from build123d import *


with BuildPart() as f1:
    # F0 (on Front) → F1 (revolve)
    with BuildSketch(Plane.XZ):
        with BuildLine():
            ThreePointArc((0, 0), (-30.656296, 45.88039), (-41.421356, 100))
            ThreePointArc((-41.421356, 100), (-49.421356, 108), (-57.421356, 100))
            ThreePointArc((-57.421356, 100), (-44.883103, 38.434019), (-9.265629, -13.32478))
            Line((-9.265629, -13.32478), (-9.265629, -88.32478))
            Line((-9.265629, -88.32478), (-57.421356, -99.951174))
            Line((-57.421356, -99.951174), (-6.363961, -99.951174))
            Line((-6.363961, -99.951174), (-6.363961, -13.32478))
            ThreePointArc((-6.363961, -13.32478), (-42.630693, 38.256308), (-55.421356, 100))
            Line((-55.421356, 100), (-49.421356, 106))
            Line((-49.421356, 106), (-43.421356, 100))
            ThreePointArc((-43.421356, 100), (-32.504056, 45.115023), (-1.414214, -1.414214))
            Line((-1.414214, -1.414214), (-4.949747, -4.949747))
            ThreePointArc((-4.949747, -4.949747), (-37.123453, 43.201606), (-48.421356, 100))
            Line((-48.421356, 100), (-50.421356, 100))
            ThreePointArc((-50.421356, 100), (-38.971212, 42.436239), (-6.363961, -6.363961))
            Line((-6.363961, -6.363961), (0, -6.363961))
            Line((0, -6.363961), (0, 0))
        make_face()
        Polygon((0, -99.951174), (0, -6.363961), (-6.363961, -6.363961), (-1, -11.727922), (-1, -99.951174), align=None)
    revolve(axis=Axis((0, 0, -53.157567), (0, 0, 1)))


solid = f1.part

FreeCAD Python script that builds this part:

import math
import FreeCAD as App
import Part
import Sketcher
from FreeCAD import Vector

doc = App.newDocument("Part")
body = doc.addObject("PartDesign::Body", "Body")

# Sketch on XZ plane
sketch1 = body.newObject("Sketcher::SketchObject", "Sketch")
sketch1.AttachmentSupport = (doc.getObject("XZ_Plane"), [""])
sketch1.MapMode = "FlatFace"
sketch1.addGeometry([
    Part.ArcOfCircle(Part.Circle(Vector(100.000004, 100.000001, 0), Vector(0, 0, 1), 141.42136), math.radians(-179.999999), math.radians(-135.000001)),  # 0
    Part.ArcOfCircle(Part.Circle(Vector(-49.421356, 100, 0), Vector(0, 0, 1), 8), math.radians(0), math.radians(180)),  # 1
    Part.ArcOfCircle(Part.Circle(Vector(99.999994, 99.999997, 0), Vector(0, 0, 1), 157.42135), math.radians(179.999999), math.radians(226.044729)),  # 2
    Part.LineSegment(Vector(-9.265629, -13.32478, 0), Vector(-9.265629, -88.32478, 0)),  # 3
    Part.LineSegment(Vector(-9.265629, -88.32478, 0), Vector(-57.421356, -99.951174, 0)),  # 4
    Part.LineSegment(Vector(-57.421356, -99.951174, 0), Vector(-6.363961, -99.951174, 0)),  # 5
    Part.LineSegment(Vector(-6.363961, -99.951174, 0), Vector(-6.363961, -13.32478, 0)),  # 6
    Part.ArcOfCircle(Part.Circle(Vector(99.999994, 99.999997, 0), Vector(0, 0, 1), 155.42135), math.radians(179.999999), math.radians(226.814806)),  # 7
    Part.LineSegment(Vector(-55.421356, 100, 0), Vector(-49.421356, 106, 0)),  # 8
    Part.LineSegment(Vector(-49.421356, 106, 0), Vector(-43.421356, 100, 0)),  # 9
    Part.ArcOfCircle(Part.Circle(Vector(99.999997, 99.999998, 0), Vector(0, 0, 1), 143.421353), math.radians(179.999999), math.radians(225)),  # 10
    Part.LineSegment(Vector(-1.414214, -1.414214, 0), Vector(-4.949747, -4.949747, 0)),  # 11
    Part.ArcOfCircle(Part.Circle(Vector(99.999997, 99.999999, 0), Vector(0, 0, 1), 148.421353), math.radians(180), math.radians(225.000001)),  # 12
    Part.LineSegment(Vector(-48.421356, 100, 0), Vector(-50.421356, 100, 0)),  # 13
    Part.ArcOfCircle(Part.Circle(Vector(100.000001, 100, 0), Vector(0, 0, 1), 150.421357), math.radians(-180), math.radians(-135)),  # 14
    Part.LineSegment(Vector(-6.363961, -6.363961, 0), Vector(-1, -11.727922, 0)),  # 15
    Part.LineSegment(Vector(-1, -11.727922, 0), Vector(-1, -99.951174, 0)),  # 16
    Part.LineSegment(Vector(-1, -99.951174, 0), Vector(0, -99.951174, 0)),  # 17
    Part.LineSegment(Vector(0, -99.951174, 0), Vector(0, 0, 0)),  # 18
], False)
sketch1.addConstraint([
    Sketcher.Constraint("Coincident", 0, 1, 1, 1),
    Sketcher.Constraint("Coincident", 1, 2, 2, 1),
    Sketcher.Constraint("Coincident", 2, 2, 3, 1),
    Sketcher.Constraint("Coincident", 3, 2, 4, 1),
    Sketcher.Constraint("Coincident", 4, 2, 5, 1),
    Sketcher.Constraint("Coincident", 5, 2, 6, 1),
    Sketcher.Constraint("Coincident", 6, 2, 7, 2),
    Sketcher.Constraint("Coincident", 7, 1, 8, 1),
    Sketcher.Constraint("Coincident", 8, 2, 9, 1),
    Sketcher.Constraint("Coincident", 9, 2, 10, 1),
    Sketcher.Constraint("Coincident", 10, 2, 11, 1),
    Sketcher.Constraint("Coincident", 11, 2, 12, 2),
    Sketcher.Constraint("Coincident", 12, 1, 13, 1),
    Sketcher.Constraint("Coincident", 13, 2, 14, 1),
    Sketcher.Constraint("Coincident", 14, 2, 15, 1),
    Sketcher.Constraint("Coincident", 15, 2, 16, 1),
    Sketcher.Constraint("Coincident", 16, 2, 17, 1),
    Sketcher.Constraint("Coincident", 17, 2, 18, 1),
    Sketcher.Constraint("Coincident", 18, 2, 0, 2),
    Sketcher.Constraint("Vertical", 3),
    Sketcher.Constraint("Horizontal", 5),
    Sketcher.Constraint("Vertical", 6),
    Sketcher.Constraint("Horizontal", 13),
    Sketcher.Constraint("Vertical", 16),
    Sketcher.Constraint("Horizontal", 17),
    Sketcher.Constraint("Vertical", 18),
    Sketcher.Constraint("Coincident", 18, 2, -1, 1),
    Sketcher.Constraint("Coincident", 7, 3, 2, 3),
    Sketcher.Constraint("Coincident", 10, 3, 0, 3),
    Sketcher.Constraint("Coincident", 12, 3, 0, 3),
    Sketcher.Constraint("Coincident", 14, 3, 0, 3),
    Sketcher.Constraint("Radius", 1, 8.0),
    Sketcher.Constraint("DistanceX", 13, 2, 13, 1, 2.0),
    Sketcher.Constraint("DistanceX", 17, 1, 17, 2, 1.0),
    Sketcher.Constraint("DistanceY", 3, 2, 3, 1, 75.0),
    Sketcher.Constraint("Distance", 11, 4.999999),
    Sketcher.Constraint("DistanceY", -1, 1, 0, 3, 100.000001),
    Sketcher.Constraint("DistanceY", -1, 1, 1, 3, 100.0),
    Sketcher.Constraint("DistanceX", -1, 1, 14, 3, 100.000001),
    Sketcher.Constraint("DistanceY", -1, 1, 0, 1, 100.0),
    Sketcher.Constraint("DistanceY", -1, 1, 1, 2, 100.0),
    Sketcher.Constraint("DistanceY", -1, 1, 7, 1, 100.0),
    Sketcher.Constraint("DistanceY", -1, 1, 8, 2, 106.0),
    Sketcher.Constraint("DistanceY", -1, 1, 9, 2, 100.0),
    Sketcher.Constraint("DistanceY", -1, 1, 12, 1, 100.0),
    Sketcher.Constraint("DistanceX", 4, 2, 1, 3, 8.0),
    Sketcher.Constraint("DistanceY", 3, 2, 6, 2, 75.0),
    Sketcher.Constraint("DistanceX", 1, 2, 7, 1, 2.0),
    Sketcher.Constraint("DistanceX", 7, 1, 8, 2, 6.0),
    Sketcher.Constraint("DistanceX", 9, 2, 0, 1, 2.0),
    Sketcher.Constraint("Radius", 2, 157.42135),
    Sketcher.Constraint("Distance", 4, 49.539349),
    Sketcher.Constraint("DistanceX", 5, 1, 5, 2, 51.057395),
    Sketcher.Constraint("DistanceY", 16, 2, 16, 1, 88.223252),
    Sketcher.Constraint("DistanceY", 18, 1, 18, 2, 99.951174),
    Sketcher.Constraint("DistanceY", 2, 2, -1, 1, 13.32478),
    Sketcher.Constraint("DistanceX", 14, 2, -1, 1, 6.363961),
    Sketcher.Constraint("DistanceY", 5, 2, 10, 2, 98.53696),
    Sketcher.Constraint("DistanceX", 11, 2, -1, 1, 4.949747),
])
revolution = body.newObject("PartDesign::Revolution", "Revolution")
revolution.Profile = sketch1
revolution.ReferenceAxis = (sketch1, ["V_Axis"])
revolution.Angle = 360

doc.recompute()
